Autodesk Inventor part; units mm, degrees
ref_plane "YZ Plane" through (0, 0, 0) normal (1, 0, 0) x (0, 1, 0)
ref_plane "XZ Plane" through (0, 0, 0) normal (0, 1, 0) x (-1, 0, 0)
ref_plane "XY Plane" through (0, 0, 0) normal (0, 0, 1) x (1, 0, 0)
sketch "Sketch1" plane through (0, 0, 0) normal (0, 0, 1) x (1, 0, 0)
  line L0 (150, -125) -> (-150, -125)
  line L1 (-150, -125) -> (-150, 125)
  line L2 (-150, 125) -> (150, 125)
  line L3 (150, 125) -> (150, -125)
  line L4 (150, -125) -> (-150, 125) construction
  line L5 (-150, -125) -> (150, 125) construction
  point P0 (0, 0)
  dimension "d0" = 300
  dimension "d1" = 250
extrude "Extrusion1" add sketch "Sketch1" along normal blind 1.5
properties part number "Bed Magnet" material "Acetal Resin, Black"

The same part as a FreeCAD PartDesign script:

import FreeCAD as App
import Part
import Sketcher

V = App.Vector
Q = App.Units.Quantity


def add_polygon(sketch, points):
    """Adds a closed chain of lines whose ends are joined by coincident constraints."""
    first, n = sketch.GeometryCount, len(points)
    for a, b in zip(points, points[1:] + points[:1]):
        sketch.addGeometry(Part.LineSegment(App.Vector(*a, 0), App.Vector(*b, 0)), False)
    for i in range(n):
        sketch.addConstraint(Sketcher.Constraint("Coincident", first + i, 2, first + (i + 1) % n, 1))

doc = App.newDocument("Part")
body = doc.addObject("PartDesign::Body", "Body")

# Sketch on XY plane
sketch1 = body.newObject("Sketcher::SketchObject", "Sketch")
sketch1.AttachmentSupport = (doc.getObject("XY_Plane"), [""])
sketch1.MapMode = "FlatFace"
add_polygon(sketch1, [(-150, -125), (150, -125), (150, 125), (-150, 125)])  # lines 0-3
sketch1.addConstraint([
    Sketcher.Constraint("Horizontal", 0),
    Sketcher.Constraint("Vertical", 1),
    Sketcher.Constraint("Horizontal", 2),
    Sketcher.Constraint("Vertical", 3),
    Sketcher.Constraint("Symmetric", 0, 2, 2, 2, -1, 1),
    Sketcher.Constraint("DistanceX", 0, 1, 0, 2, Q("300 mm")),
    Sketcher.Constraint("DistanceY", 1, 1, 1, 2, Q("250 mm")),
])
pad1 = body.newObject("PartDesign::Pad", "Pad")
pad1.Profile = sketch1
pad1.Length = 1.5

doc.recompute()
